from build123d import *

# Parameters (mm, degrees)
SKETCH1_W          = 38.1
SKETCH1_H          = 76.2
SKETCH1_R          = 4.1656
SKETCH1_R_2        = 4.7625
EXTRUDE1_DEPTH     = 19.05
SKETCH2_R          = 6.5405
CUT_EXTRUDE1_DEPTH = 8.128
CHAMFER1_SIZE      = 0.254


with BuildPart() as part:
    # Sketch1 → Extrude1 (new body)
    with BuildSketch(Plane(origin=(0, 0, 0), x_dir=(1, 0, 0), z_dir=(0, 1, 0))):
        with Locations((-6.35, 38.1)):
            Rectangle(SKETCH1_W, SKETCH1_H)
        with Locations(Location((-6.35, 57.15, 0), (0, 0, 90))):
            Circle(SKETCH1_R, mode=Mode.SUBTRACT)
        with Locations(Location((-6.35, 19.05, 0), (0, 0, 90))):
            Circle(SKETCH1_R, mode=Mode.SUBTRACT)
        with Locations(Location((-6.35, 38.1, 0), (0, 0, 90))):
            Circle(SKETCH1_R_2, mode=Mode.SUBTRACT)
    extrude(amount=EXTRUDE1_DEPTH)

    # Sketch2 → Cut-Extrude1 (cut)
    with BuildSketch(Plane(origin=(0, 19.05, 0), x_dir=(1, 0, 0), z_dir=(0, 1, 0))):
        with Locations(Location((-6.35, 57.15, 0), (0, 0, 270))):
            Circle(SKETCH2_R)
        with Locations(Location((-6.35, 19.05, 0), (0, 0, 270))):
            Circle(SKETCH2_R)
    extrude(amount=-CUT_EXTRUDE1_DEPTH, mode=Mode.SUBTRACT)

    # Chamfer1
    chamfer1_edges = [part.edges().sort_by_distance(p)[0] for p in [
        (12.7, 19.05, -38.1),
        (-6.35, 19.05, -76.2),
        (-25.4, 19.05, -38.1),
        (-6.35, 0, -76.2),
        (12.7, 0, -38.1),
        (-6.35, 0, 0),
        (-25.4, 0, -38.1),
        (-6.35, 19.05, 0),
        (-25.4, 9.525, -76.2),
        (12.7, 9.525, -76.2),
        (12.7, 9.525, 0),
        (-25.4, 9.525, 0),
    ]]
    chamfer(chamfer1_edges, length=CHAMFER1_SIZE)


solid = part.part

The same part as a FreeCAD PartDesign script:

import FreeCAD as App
import Part
import Sketcher
Q = App.Units.Quantity


def edges_at(feature, points):
    """Names of the edges that pass closest to the given points."""
    edges = feature.Shape.Edges
    near = lambda p: min(range(len(edges)), key=lambda i: edges[i].distToShape(Part.Vertex(*p))[0])
    return sorted({f"Edge{near(p) + 1}" for p in points})

doc = App.newDocument("Part")
params = doc.addObject("Spreadsheet::Sheet", "Params")
for row, (alias, value) in enumerate([
    ("sketch1_height", "3 in"),
    ("sketch1_diameter", "0.328 in"),
    ("sketch1_diameter2", "0.375 in"),
    ("sketch1_width", "1.5 in"),
    ("pad1_length", "0.75 in"),
    ("sketch2_diameter", "0.515 in"),
    ("pocket1_length", "0.32 in"),
    ("chamfer_size", "0.01 in"),
], start=1):
    params.set(f"A{row}", alias)
    params.set(f"B{row}", "=" + value)
    params.setAlias(f"B{row}", alias)

body = doc.addObject("PartDesign::Body", "Body")

# Sketch on XZ plane
sketch1 = body.newObject("Sketcher::SketchObject", "Sketch")
sketch1.AttachmentSupport = (doc.getObject("XZ_Plane"), [""])
sketch1.MapMode = "FlatFace"
sketch1.addGeometry(Part.LineSegment(App.Vector(-25.4, -76.2, 0), App.Vector(-25.4, 0, 0)), False)
sketch1.addGeometry(Part.LineSegment(App.Vector(-25.4, 0, 0), App.Vector(12.7, 0, 0)), False)
sketch1.addGeometry(Part.LineSegment(App.Vector(12.7, 0, 0), App.Vector(12.7, -76.2, 0)), False)
sketch1.addGeometry(Part.LineSegment(App.Vector(12.7, -76.2, 0), App.Vector(-25.4, -76.2, 0)), False)
sketch1.addGeometry(Part.Circle(App.Vector(-6.3, -19.1, 0), App.Vector(0, 0, 1), 4.2), False)
sketch1.addGeometry(Part.Circle(App.Vector(-6.3, -38.1, 0), App.Vector(0, 0, 1), 4.8), False)
sketch1.addGeometry(Part.Circle(App.Vector(-6.3, -57.1, 0), App.Vector(0, 0, 1), 4.2), False)
sketch1.addConstraint(Sketcher.Constraint("Coincident", 0, 2, 1, 1))
sketch1.addConstraint(Sketcher.Constraint("Coincident", 1, 2, 2, 1))
sketch1.addConstraint(Sketcher.Constraint("Coincident", 2, 2, 3, 1))
sketch1.addConstraint(Sketcher.Constraint("Coincident", 3, 2, 0, 1))
sketch1.addConstraint(Sketcher.Constraint("Vertical", 0))
sketch1.addConstraint(Sketcher.Constraint("Horizontal", 1))
sketch1.addConstraint(Sketcher.Constraint("Vertical", 2))
sketch1.addConstraint(Sketcher.Constraint("Horizontal", 3))
sketch1.addConstraint(Sketcher.Constraint("Equal", 4, 6))
sketch1.addConstraint(Sketcher.Constraint("PointOnObject", 0, 2, -1))
sketch1.addConstraint(Sketcher.Constraint("Vertical", 4, 3, 5, 3))
sketch1.addConstraint(Sketcher.Constraint("Vertical", 5, 3, 6, 3))
sketch1.addConstraint(Sketcher.Constraint("DistanceY", 0, 1, 0, 2, Q("3 in")))
sketch1.addConstraint(Sketcher.Constraint("Diameter", 4, Q("0.328 in")))
sketch1.addConstraint(Sketcher.Constraint("Diameter", 5, Q("0.375 in")))
sketch1.addConstraint(Sketcher.Constraint("DistanceX", 1, 1, 1, 2, Q("1.5 in")))
sketch1.addConstraint(Sketcher.Constraint("DistanceX", 0, 2, -1, 1, Q("1 in")))
sketch1.addConstraint(Sketcher.Constraint("DistanceY", 5, 3, -1, 1, Q("1.5 in")))
sketch1.addConstraint(Sketcher.Constraint("DistanceY", 6, 3, 4, 3, Q("1.5 in")))
sketch1.addConstraint(Sketcher.Constraint("DistanceX", 4, 3, -1, 1, Q("0.25 in")))
sketch1.addConstraint(Sketcher.Constraint("DistanceY", 4, 3, -1, 1, Q("0.75 in")))
sketch1.setExpression("Constraints[12]", "Params.sketch1_height")
sketch1.setExpression("Constraints[13]", "Params.sketch1_diameter")
sketch1.setExpression("Constraints[14]", "Params.sketch1_diameter2")
sketch1.setExpression("Constraints[15]", "Params.sketch1_width")
pad1 = body.newObject("PartDesign::Pad", "Pad")
pad1.Profile = sketch1
pad1.setExpression("Length", "Params.pad1_length")
pad1.Reversed = True

# Sketch on XZ plane
sketch2 = body.newObject("Sketcher::SketchObject", "Sketch001")
sketch2.AttachmentSupport = (doc.getObject("XZ_Plane"), [""])
sketch2.MapMode = "FlatFace"
sketch2.AttachmentOffset = App.Placement(App.Vector(0, 0, -0.75 * 25.4), App.Rotation())
sketch2.addGeometry(Part.Circle(App.Vector(-6, -57, 0), App.Vector(0, 0, 1), 7), False)
sketch2.addGeometry(Part.Circle(App.Vector(-6, -19, 0), App.Vector(0, 0, 1), 7), False)
sketch2.addConstraint(Sketcher.Constraint("Equal", 0, 1))
sketch2.addConstraint(Sketcher.Constraint("Vertical", 0, 3, 1, 3))
sketch2.addConstraint(Sketcher.Constraint("Diameter", 0, Q("0.515 in")))
sketch2.addConstraint(Sketcher.Constraint("DistanceY", 0, 3, 1, 3, Q("1.5 in")))
sketch2.addConstraint(Sketcher.Constraint("DistanceX", 0, 3, -1, 1, Q("0.25 in")))
sketch2.addConstraint(Sketcher.Constraint("DistanceY", 0, 3, -1, 1, Q("2.25 in")))
sketch2.setExpression("Constraints[2]", "Params.sketch2_diameter")
pocket1 = body.newObject("PartDesign::Pocket", "Pocket")
pocket1.Profile = sketch2
pocket1.setExpression("Length", "Params.pocket1_length")
pocket1.Reversed = True
doc.recompute()

chamfer = body.newObject("PartDesign::Chamfer", "Chamfer")
chamfer.Base = (pocket1, edges_at(pocket1, [
    (12.7, 19.05, -38.1),
    (-6.35, 19.05, -76.2),
    (-25.4, 19.05, -38.1),
    (-6.35, 0, -76.2),
    (12.7, 0, -38.1),
    (-6.35, 0, 0),
    (-25.4, 0, -38.1),
    (-6.35, 19.05, 0),
    (-25.4, 9.525, -76.2),
    (12.7, 9.525, -76.2),
    (12.7, 9.525, 0),
    (-25.4, 9.525, 0),
]))
chamfer.setExpression("Size", "Params.chamfer_size")

doc.recompute()
